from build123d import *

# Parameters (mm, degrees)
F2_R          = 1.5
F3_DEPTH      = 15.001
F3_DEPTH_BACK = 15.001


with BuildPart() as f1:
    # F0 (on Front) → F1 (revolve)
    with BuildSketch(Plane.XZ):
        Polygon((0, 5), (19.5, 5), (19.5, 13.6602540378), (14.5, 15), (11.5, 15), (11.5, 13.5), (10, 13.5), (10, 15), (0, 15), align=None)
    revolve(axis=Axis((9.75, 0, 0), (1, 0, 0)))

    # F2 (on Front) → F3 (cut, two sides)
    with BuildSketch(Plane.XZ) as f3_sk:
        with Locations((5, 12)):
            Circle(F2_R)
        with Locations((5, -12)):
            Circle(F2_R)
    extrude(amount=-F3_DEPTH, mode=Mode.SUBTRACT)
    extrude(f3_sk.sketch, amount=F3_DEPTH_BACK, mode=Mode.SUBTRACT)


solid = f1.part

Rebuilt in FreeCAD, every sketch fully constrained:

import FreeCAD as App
import Part
import Sketcher

V = App.Vector
Q = App.Units.Quantity


def add_polygon(sketch, points):
    """Adds a closed chain of lines whose ends are joined by coincident constraints."""
    first, n = sketch.GeometryCount, len(points)
    for a, b in zip(points, points[1:] + points[:1]):
        sketch.addGeometry(Part.LineSegment(App.Vector(*a, 0), App.Vector(*b, 0)), False)
    for i in range(n):
        sketch.addConstraint(Sketcher.Constraint("Coincident", first + i, 2, first + (i + 1) % n, 1))

doc = App.newDocument("Part")
body = doc.addObject("PartDesign::Body", "Body")

sketch1 = doc.addObject("Sketcher::SketchObject", "Sketch")
body.addObject(sketch1)
sketch1.AttachmentSupport = (doc.XZ_Plane, [""])
sketch1.MapMode = "FlatFace"
add_polygon(sketch1, [(0, 5), (19.5, 5), (19.5, 13.7), (14.5, 15), (11.5, 15), (11.5, 13.5), (10, 13.5), (10, 15), (0, 15)])
sketch1.addConstraint([
    Sketcher.Constraint("Horizontal", 0),
    Sketcher.Constraint("Vertical", 1),
    Sketcher.Constraint("Horizontal", 3),
    Sketcher.Constraint("Vertical", 4),
    Sketcher.Constraint("Horizontal", 5),
    Sketcher.Constraint("Vertical", 6),
    Sketcher.Constraint("Horizontal", 7),
    Sketcher.Constraint("Vertical", 8),
    Sketcher.Constraint("PointOnObject", 7, 2, -2),
    Sketcher.Constraint("Horizontal", 3, 2, 6, 2),
    Sketcher.Constraint("Equal", 5, 4),
    Sketcher.Constraint("Equal", 7, 8),
    Sketcher.Constraint("DistanceX", 3, 2, 3, 1, Q("3 mm")),
    Sketcher.Constraint("DistanceX", 7, 2, 7, 1, Q("10 mm")),
    Sketcher.Constraint("Angle", 2, Q("165 deg")),
    Sketcher.Constraint("DistanceX", 0, 1, 0, 2, Q("19.5 mm")),
    Sketcher.Constraint("DistanceX", 5, 2, 5, 1, Q("1.5 mm")),
    Sketcher.Constraint("DistanceY", -1, 1, 0, 2, Q("5 mm")),
])
revolution = doc.addObject("PartDesign::Revolution", "Revolution")
body.addObject(revolution)
revolution.Profile = sketch1
revolution.ReferenceAxis = (sketch1, ["H_Axis"])
revolution.Angle = 360

sketch2 = doc.addObject("Sketcher::SketchObject", "Sketch001")
body.addObject(sketch2)
sketch2.AttachmentSupport = (doc.XZ_Plane, [""])
sketch2.MapMode = "FlatFace"
sketch2.addGeometry([
    Part.Circle(V(5, 12, 0), V(0, 0, 1), 1.5),
    Part.Circle(V(5, -12, 0), V(0, 0, 1), 1.5),
], False)
sketch2.addConstraint([
    Sketcher.Constraint("Equal", 0, 1),
    Sketcher.Constraint("Symmetric", 0, 3, 1, 3, -1),
    Sketcher.Constraint("Diameter", 0, Q("3 mm")),
    Sketcher.Constraint("DistanceX", -1, 1, 0, 3, Q("5 mm")),
    Sketcher.Constraint("DistanceY", -1, 1, 0, 3, Q("12 mm")),
])
pocket1 = doc.addObject("PartDesign::Pocket", "Pocket")
body.addObject(pocket1)
pocket1.Profile = sketch2
pocket1.Type = "ThroughAll"
pocket1.Midplane = True

doc.recompute()
